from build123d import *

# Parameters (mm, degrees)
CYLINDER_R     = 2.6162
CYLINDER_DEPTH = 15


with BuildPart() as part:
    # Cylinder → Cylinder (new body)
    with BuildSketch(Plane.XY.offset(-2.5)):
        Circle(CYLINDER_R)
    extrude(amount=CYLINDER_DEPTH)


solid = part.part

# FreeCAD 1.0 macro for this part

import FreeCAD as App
import Part
import Sketcher

V = App.Vector

doc = App.newDocument("Part")
params = doc.addObject("Spreadsheet::Sheet", "Params")
for row, (alias, value) in enumerate([
    ("pad1_length", "15 mm"),
], start=1):
    params.set(f"A{row}", alias)
    params.set(f"B{row}", "=" + value)
    params.setAlias(f"B{row}", alias)

body = doc.addObject("PartDesign::Body", "Body")

# Sketch on XY plane
sketch1 = body.newObject("Sketcher::SketchObject", "Sketch")
sketch1.AttachmentSupport = (doc.getObject("XY_Plane"), [""])
sketch1.MapMode = "FlatFace"
sketch1.AttachmentOffset = App.Placement(V(0, 0, -2.5), App.Rotation())
sketch1.addGeometry(Part.Circle(V(0, 0, 0), V(0, 0, 1), 2.6162), False)
sketch1.addConstraint([
    Sketcher.Constraint("Coincident", 0, 3, -1, 1),
    Sketcher.Constraint("Diameter", 0, 5.2324),
])
pad1 = body.newObject("PartDesign::Pad", "Pad")
pad1.Profile = sketch1
pad1.setExpression("Length", "Params.pad1_length")

doc.recompute()
